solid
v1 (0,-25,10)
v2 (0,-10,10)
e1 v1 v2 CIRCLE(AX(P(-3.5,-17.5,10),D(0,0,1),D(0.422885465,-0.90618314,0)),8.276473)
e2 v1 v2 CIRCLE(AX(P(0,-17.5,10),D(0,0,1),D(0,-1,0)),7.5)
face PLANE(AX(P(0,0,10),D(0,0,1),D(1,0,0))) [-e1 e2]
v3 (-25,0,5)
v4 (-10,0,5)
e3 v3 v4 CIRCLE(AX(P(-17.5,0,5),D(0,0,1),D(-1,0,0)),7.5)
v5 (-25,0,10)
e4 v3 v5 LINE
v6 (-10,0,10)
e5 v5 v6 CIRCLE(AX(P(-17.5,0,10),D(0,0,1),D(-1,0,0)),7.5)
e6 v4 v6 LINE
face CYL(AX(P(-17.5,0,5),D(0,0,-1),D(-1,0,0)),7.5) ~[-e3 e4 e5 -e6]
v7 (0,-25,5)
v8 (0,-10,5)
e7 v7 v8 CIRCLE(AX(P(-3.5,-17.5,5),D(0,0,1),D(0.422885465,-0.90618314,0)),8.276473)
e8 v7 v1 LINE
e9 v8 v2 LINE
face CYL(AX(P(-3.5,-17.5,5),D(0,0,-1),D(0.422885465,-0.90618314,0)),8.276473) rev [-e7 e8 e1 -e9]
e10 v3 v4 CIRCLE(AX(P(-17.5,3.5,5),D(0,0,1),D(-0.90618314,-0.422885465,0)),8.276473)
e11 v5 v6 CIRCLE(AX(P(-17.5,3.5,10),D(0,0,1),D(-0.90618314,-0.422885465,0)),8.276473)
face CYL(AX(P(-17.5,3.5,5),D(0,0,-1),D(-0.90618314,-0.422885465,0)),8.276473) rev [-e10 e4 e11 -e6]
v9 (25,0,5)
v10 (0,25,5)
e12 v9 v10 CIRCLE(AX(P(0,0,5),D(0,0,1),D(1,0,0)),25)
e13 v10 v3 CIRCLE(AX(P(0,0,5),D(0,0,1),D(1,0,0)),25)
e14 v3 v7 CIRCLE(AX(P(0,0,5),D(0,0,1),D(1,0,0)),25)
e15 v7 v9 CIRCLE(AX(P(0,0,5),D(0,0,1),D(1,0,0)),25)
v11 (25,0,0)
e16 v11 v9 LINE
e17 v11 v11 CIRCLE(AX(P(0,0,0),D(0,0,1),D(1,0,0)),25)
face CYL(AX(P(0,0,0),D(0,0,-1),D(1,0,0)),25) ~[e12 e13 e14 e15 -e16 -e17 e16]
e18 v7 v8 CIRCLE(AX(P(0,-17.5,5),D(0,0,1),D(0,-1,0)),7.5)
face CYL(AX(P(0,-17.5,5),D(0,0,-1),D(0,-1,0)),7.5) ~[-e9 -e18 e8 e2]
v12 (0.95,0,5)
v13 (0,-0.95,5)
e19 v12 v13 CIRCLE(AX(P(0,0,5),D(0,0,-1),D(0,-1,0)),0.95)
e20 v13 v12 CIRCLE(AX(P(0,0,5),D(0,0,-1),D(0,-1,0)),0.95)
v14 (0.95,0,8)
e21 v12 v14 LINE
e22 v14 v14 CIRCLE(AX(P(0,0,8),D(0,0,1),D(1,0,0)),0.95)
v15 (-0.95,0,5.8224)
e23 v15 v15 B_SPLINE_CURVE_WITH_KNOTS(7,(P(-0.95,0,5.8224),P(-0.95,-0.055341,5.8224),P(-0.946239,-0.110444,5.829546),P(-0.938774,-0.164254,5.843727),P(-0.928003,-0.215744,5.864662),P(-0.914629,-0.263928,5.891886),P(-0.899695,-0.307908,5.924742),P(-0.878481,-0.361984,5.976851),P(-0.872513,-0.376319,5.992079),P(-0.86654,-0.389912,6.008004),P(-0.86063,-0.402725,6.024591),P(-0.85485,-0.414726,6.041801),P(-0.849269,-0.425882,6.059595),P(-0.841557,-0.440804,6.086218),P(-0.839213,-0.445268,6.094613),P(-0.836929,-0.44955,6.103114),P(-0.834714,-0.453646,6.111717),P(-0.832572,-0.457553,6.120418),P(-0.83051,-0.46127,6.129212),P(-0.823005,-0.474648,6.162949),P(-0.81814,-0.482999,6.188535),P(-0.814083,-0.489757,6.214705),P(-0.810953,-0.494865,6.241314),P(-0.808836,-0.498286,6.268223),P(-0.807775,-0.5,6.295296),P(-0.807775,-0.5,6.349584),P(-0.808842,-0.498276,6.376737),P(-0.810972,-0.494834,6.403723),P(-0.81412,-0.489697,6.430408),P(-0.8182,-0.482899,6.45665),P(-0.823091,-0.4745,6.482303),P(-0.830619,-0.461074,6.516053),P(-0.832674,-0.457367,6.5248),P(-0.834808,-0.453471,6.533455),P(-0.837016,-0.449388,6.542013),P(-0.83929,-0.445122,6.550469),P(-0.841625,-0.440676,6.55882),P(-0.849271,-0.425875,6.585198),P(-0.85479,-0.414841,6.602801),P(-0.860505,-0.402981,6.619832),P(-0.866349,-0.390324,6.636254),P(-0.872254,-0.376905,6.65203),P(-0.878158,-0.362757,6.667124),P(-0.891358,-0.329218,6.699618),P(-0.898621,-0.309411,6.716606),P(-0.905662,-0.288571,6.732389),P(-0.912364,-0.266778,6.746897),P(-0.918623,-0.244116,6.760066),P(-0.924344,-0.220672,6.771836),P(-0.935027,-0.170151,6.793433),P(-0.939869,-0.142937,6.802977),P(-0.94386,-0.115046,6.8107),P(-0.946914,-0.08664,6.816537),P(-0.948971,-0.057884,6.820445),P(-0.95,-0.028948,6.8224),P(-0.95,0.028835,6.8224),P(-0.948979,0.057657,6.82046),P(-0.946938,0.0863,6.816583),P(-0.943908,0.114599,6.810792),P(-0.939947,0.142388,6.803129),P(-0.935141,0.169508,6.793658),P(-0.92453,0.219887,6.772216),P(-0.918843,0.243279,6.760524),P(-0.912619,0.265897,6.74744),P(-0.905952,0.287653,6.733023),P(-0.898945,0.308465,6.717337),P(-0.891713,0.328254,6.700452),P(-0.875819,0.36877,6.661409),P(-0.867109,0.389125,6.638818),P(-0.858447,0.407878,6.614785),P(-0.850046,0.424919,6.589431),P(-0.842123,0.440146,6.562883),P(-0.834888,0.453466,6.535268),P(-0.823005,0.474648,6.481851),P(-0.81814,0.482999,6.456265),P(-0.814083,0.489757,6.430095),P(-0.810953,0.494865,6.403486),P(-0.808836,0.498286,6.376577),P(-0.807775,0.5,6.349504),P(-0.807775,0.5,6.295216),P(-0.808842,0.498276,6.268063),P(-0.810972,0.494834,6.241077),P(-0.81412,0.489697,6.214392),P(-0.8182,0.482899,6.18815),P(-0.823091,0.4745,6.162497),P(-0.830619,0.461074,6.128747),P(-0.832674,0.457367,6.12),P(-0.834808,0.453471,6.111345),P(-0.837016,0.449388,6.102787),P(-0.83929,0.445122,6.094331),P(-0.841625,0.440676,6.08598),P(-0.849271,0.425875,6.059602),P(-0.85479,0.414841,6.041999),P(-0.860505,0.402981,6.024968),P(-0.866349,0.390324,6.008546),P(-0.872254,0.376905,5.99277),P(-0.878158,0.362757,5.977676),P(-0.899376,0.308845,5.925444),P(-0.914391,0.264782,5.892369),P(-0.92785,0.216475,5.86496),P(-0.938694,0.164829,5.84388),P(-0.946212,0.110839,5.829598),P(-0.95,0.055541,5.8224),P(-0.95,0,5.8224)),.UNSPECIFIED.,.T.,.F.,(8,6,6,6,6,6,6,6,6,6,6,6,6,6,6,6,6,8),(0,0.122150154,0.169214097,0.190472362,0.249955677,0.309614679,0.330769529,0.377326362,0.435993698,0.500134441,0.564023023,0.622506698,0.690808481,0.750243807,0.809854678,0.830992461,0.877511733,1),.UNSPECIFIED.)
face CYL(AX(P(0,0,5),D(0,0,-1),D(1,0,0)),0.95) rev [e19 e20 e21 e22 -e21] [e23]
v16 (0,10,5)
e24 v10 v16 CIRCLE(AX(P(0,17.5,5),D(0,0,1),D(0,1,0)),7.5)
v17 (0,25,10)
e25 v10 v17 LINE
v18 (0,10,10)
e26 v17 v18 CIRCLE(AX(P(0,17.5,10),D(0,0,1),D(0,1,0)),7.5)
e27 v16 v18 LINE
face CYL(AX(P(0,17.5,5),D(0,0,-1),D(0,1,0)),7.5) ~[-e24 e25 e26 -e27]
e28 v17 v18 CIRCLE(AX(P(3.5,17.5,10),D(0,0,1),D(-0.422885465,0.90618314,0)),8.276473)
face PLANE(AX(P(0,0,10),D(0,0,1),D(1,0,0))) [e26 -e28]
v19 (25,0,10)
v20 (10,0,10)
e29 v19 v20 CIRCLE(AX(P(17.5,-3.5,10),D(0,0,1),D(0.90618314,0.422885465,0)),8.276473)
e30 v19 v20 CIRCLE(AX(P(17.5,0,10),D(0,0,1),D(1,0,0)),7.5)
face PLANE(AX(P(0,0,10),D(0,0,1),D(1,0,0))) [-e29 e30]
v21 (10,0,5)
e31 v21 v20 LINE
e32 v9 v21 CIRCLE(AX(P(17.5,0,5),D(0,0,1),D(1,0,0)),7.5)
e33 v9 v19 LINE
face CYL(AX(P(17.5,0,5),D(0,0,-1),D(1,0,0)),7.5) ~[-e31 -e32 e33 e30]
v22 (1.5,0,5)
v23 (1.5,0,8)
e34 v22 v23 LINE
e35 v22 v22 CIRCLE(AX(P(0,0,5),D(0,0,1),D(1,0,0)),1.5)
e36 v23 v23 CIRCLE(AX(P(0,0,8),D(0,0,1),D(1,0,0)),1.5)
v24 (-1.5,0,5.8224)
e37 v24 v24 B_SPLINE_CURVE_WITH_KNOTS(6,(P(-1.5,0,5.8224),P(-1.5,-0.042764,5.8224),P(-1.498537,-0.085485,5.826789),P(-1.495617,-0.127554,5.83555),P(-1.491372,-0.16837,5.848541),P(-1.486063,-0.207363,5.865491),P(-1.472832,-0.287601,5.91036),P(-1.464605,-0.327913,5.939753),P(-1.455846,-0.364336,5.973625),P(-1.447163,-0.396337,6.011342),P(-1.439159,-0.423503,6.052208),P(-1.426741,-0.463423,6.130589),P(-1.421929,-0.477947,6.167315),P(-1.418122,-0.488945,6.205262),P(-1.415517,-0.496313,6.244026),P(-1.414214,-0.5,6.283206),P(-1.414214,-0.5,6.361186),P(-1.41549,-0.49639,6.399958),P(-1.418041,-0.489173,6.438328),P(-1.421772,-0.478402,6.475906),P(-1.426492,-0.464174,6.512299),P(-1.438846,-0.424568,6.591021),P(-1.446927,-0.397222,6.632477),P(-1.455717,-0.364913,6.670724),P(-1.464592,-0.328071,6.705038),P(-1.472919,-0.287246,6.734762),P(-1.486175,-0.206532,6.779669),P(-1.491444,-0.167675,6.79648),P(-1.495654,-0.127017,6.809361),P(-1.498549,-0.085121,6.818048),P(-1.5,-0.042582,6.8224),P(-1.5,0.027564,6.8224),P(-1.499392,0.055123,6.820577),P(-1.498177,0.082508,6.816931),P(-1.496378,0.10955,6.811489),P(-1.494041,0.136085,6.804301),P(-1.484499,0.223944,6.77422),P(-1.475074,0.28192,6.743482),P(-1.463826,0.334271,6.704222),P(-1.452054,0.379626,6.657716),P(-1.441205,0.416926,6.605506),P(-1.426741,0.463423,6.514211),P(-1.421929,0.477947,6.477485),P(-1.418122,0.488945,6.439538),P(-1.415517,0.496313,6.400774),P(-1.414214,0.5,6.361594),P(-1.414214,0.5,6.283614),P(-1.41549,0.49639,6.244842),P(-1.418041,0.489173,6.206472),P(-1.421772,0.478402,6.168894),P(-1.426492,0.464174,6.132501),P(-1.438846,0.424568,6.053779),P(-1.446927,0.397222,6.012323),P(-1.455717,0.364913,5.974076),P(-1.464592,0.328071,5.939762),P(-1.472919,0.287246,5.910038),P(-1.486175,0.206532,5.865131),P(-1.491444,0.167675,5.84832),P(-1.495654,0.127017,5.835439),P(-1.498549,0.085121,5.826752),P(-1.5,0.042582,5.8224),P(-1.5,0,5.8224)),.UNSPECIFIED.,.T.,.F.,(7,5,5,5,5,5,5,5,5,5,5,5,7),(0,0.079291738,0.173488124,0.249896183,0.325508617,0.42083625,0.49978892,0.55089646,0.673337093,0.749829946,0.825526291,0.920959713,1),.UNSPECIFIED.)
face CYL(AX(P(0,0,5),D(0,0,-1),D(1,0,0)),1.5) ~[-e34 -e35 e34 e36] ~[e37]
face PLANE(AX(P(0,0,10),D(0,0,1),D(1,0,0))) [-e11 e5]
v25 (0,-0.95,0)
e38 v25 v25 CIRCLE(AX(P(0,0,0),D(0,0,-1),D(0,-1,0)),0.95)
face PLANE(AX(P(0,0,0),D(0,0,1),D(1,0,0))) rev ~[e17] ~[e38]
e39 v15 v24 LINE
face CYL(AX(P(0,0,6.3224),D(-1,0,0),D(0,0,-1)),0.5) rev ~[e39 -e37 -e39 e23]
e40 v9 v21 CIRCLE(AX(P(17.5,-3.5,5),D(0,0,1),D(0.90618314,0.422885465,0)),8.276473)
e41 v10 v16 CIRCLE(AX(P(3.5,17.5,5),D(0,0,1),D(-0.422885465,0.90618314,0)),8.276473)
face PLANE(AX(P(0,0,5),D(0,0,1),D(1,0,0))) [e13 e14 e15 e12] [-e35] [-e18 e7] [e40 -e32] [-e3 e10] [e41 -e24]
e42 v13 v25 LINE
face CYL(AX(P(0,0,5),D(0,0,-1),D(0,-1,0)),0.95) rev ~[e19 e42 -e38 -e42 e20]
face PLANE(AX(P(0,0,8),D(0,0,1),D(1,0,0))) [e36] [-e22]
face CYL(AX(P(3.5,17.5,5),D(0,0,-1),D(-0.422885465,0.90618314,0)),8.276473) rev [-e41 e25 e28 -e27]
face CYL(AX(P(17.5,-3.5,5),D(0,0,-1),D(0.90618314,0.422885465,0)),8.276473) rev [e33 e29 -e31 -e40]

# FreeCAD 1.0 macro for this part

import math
import FreeCAD as App
import Part
import Sketcher
from FreeCAD import Vector
Q = App.Units.Quantity

doc = App.newDocument("Part")
body = doc.addObject("PartDesign::Body", "Body")

# Sketch on XY plane
sketch1 = doc.addObject("Sketcher::SketchObject", "Sketch")
body.addObject(sketch1)
sketch1.AttachmentSupport = (doc.XY_Plane, [""])
sketch1.MapMode = "FlatFace"
sketch1.addGeometry(Part.Circle(Vector(0, 0, 0), Vector(0, 0, 1), 25), False)
sketch1.addConstraint([
    Sketcher.Constraint("Coincident", 0, 3, -1, 1),
    Sketcher.Constraint("Diameter", 0, Q("50 mm")),
])
pad1 = doc.addObject("PartDesign::Pad", "Pad")
body.addObject(pad1)
pad1.Profile = sketch1
pad1.Length = 5

# Sketch on XY plane
sketch2 = doc.addObject("Sketcher::SketchObject", "Sketch001")
body.addObject(sketch2)
sketch2.AttachmentSupport = (doc.XY_Plane, [""])
sketch2.MapMode = "FlatFace"
sketch2.AttachmentOffset = App.Placement(Vector(0, 0, 5), App.Rotation())
sketch2.addGeometry([
    Part.ArcOfCircle(Part.Circle(Vector(17.5, 0, 0), Vector(0, 0, 1), 7.5), math.radians(0), math.radians(180)),  # 0
    Part.ArcOfCircle(Part.Circle(Vector(17.5, -3.5, 0), Vector(0, 0, 1), 8.276473), math.radians(25.016893), math.radians(154.983107)),  # 1
    Part.ArcOfCircle(Part.Circle(Vector(0, 17.5, 0), Vector(0, 0, 1), 7.5), math.radians(90), math.radians(270)),  # 2
    Part.ArcOfCircle(Part.Circle(Vector(3.5, 17.5, 0), Vector(0, 0, 1), 8.276473), math.radians(115.016893), math.radians(244.983107)),  # 3
    Part.ArcOfCircle(Part.Circle(Vector(0, -17.5, 0), Vector(0, 0, 1), 7.5), math.radians(-90), math.radians(90)),  # 4
    Part.ArcOfCircle(Part.Circle(Vector(-3.5, -17.5, 0), Vector(0, 0, 1), 8.276473), math.radians(-64.983107), math.radians(64.983107)),  # 5
    Part.ArcOfCircle(Part.Circle(Vector(-17.5, 0, 0), Vector(0, 0, 1), 7.5), math.radians(180), math.radians(360)),  # 6
    Part.ArcOfCircle(Part.Circle(Vector(-17.5, 3.5, 0), Vector(0, 0, 1), 8.276473), math.radians(-154.983107), math.radians(-25.016893)),  # 7
], False)
sketch2.addConstraint([
    Sketcher.Constraint("Coincident", 0, 1, 1, 1),
    Sketcher.Constraint("Coincident", 1, 2, 0, 2),
    Sketcher.Constraint("Coincident", 2, 1, 3, 1),
    Sketcher.Constraint("Coincident", 3, 2, 2, 2),
    Sketcher.Constraint("Coincident", 4, 1, 5, 1),
    Sketcher.Constraint("Coincident", 5, 2, 4, 2),
    Sketcher.Constraint("Coincident", 6, 1, 7, 1),
    Sketcher.Constraint("Coincident", 7, 2, 6, 2),
    Sketcher.Constraint("Equal", 0, 2),
    Sketcher.Constraint("Equal", 1, 3),
    Sketcher.Constraint("Equal", 2, 4),
    Sketcher.Constraint("Equal", 3, 5),
    Sketcher.Constraint("Equal", 4, 6),
    Sketcher.Constraint("Equal", 5, 7),
    Sketcher.Constraint("Symmetric", 2, 3, 4, 3, -1, 1),
    Sketcher.Constraint("Symmetric", 3, 3, 5, 3, -1, 1),
    Sketcher.Constraint("Symmetric", 0, 3, 6, 3, -1, 1),
    Sketcher.Constraint("Symmetric", 1, 3, 7, 3, -1, 1),
    Sketcher.Constraint("PointOnObject", 0, 3, -1),
    Sketcher.Constraint("PointOnObject", 2, 3, -2),
    Sketcher.Constraint("PointOnObject", 0, 1, -1),
    Sketcher.Constraint("PointOnObject", 1, 2, -1),
    Sketcher.Constraint("PointOnObject", 2, 1, -2),
    Sketcher.Constraint("PointOnObject", 3, 2, -2),
    Sketcher.Constraint("DistanceY", 1, 3, -1, 1, Q("3.5 mm")),
    Sketcher.Constraint("Radius", 0, Q("7.5 mm")),
    Sketcher.Constraint("DistanceX", -1, 1, 0, 1, Q("25 mm")),
    Sketcher.Constraint("DistanceY", -1, 1, 2, 1, Q("25 mm")),
])
pad2 = doc.addObject("PartDesign::Pad", "Pad001")
body.addObject(pad2)
pad2.Profile = sketch2
pad2.Length = 5

# Sketch on XY plane
sketch3 = doc.addObject("Sketcher::SketchObject", "Sketch002")
body.addObject(sketch3)
sketch3.AttachmentSupport = (doc.XY_Plane, [""])
sketch3.MapMode = "FlatFace"
sketch3.AttachmentOffset = App.Placement(Vector(0, 0, 5), App.Rotation())
sketch3.addGeometry(Part.Circle(Vector(0, 0, 0), Vector(0, 0, 1), 0.95), False)
sketch3.addConstraint([
    Sketcher.Constraint("Coincident", 0, 3, -1, 1),
    Sketcher.Constraint("Diameter", 0, Q("1.9 mm")),
])
doc.recompute()
hole = doc.addObject("PartDesign::Hole", "Hole")
body.addObject(hole)
hole.Profile = sketch3
hole.ThreadType = "None"
hole.Diameter = 1.9
hole.DepthType = "Dimension"
hole.Depth = 6
hole.DrillPoint = "Angled"
hole.DrillPointAngle = 118

# Sketch on XY plane
sketch4 = doc.addObject("Sketcher::SketchObject", "Sketch003")
body.addObject(sketch4)
sketch4.AttachmentSupport = (doc.XY_Plane, [""])
sketch4.MapMode = "FlatFace"
sketch4.AttachmentOffset = App.Placement(Vector(0, 0, 5), App.Rotation())
sketch4.addGeometry([
    Part.Circle(Vector(0, 0, 0), Vector(0, 0, 1), 1.5),
    Part.Circle(Vector(0, 0, 0), Vector(0, 0, 1), 0.95),
], False)
sketch4.addConstraint([
    Sketcher.Constraint("Coincident", 0, 3, -1, 1),
    Sketcher.Constraint("Coincident", 1, 3, -1, 1),
    Sketcher.Constraint("Diameter", 0, Q("3 mm")),
    Sketcher.Constraint("Diameter", 1, Q("1.9 mm")),
])
pad3 = doc.addObject("PartDesign::Pad", "Pad002")
body.addObject(pad3)
pad3.Profile = sketch4
pad3.Length = 3

# Sketch on YZ plane
sketch5 = doc.addObject("Sketcher::SketchObject", "Sketch004")
body.addObject(sketch5)
sketch5.AttachmentSupport = (doc.YZ_Plane, [""])
sketch5.MapMode = "FlatFace"
sketch5.addGeometry(Part.Circle(Vector(0, 6.3224, 0), Vector(0, 0, 1), 0.5), False)
sketch5.addConstraint([
    Sketcher.Constraint("PointOnObject", 0, 3, -2),
    Sketcher.Constraint("Diameter", 0, Q("1 mm")),
    Sketcher.Constraint("DistanceY", -1, 1, 0, 3, Q("6.3224 mm")),
])
doc.recompute()
hole2 = doc.addObject("PartDesign::Hole", "Hole001")
body.addObject(hole2)
hole2.Profile = sketch5
hole2.ThreadType = "None"
hole2.Diameter = 1
hole2.DepthType = "Dimension"
hole2.Depth = 2
hole2.DrillPoint = "Angled"
hole2.DrillPointAngle = 118

doc.recompute()
